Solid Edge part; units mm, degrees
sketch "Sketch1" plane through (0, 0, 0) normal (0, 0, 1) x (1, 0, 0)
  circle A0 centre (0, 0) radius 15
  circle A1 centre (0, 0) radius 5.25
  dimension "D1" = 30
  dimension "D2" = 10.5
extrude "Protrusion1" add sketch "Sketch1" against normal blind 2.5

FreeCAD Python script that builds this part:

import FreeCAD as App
import Part
import Sketcher

doc = App.newDocument("Part")
params = doc.addObject("Spreadsheet::Sheet", "Params")
for row, (alias, value) in enumerate([
    ("sketch1_diameter", "30 mm"),
    ("sketch1_diameter2", "10.5 mm"),
    ("pad1_length", "2.5 mm"),
], start=1):
    params.set(f"A{row}", alias)
    params.set(f"B{row}", "=" + value)
    params.setAlias(f"B{row}", alias)

body = doc.addObject("PartDesign::Body", "Body")

sketch1 = body.newObject("Sketcher::SketchObject", "Sketch")
sketch1.AttachmentSupport = (doc.getObject("XY_Plane"), [""])
sketch1.MapMode = "FlatFace"
sketch1.addGeometry(Part.Circle(App.Vector(0, 0, 0), App.Vector(0, 0, 1), 15), False)
sketch1.addGeometry(Part.Circle(App.Vector(0, 0, 0), App.Vector(0, 0, 1), 5), False)
sketch1.addConstraint(Sketcher.Constraint("Coincident", 0, 3, -1, 1))
sketch1.addConstraint(Sketcher.Constraint("Coincident", 1, 3, -1, 1))
sketch1.addConstraint(Sketcher.Constraint("Diameter", 0, 30.0))
sketch1.addConstraint(Sketcher.Constraint("Diameter", 1, 10.5))
sketch1.setExpression("Constraints[2]", "Params.sketch1_diameter")
sketch1.setExpression("Constraints[3]", "Params.sketch1_diameter2")
pad1 = body.newObject("PartDesign::Pad", "Pad")
pad1.Profile = sketch1
pad1.setExpression("Length", "Params.pad1_length")
pad1.Reversed = True

doc.recompute()
